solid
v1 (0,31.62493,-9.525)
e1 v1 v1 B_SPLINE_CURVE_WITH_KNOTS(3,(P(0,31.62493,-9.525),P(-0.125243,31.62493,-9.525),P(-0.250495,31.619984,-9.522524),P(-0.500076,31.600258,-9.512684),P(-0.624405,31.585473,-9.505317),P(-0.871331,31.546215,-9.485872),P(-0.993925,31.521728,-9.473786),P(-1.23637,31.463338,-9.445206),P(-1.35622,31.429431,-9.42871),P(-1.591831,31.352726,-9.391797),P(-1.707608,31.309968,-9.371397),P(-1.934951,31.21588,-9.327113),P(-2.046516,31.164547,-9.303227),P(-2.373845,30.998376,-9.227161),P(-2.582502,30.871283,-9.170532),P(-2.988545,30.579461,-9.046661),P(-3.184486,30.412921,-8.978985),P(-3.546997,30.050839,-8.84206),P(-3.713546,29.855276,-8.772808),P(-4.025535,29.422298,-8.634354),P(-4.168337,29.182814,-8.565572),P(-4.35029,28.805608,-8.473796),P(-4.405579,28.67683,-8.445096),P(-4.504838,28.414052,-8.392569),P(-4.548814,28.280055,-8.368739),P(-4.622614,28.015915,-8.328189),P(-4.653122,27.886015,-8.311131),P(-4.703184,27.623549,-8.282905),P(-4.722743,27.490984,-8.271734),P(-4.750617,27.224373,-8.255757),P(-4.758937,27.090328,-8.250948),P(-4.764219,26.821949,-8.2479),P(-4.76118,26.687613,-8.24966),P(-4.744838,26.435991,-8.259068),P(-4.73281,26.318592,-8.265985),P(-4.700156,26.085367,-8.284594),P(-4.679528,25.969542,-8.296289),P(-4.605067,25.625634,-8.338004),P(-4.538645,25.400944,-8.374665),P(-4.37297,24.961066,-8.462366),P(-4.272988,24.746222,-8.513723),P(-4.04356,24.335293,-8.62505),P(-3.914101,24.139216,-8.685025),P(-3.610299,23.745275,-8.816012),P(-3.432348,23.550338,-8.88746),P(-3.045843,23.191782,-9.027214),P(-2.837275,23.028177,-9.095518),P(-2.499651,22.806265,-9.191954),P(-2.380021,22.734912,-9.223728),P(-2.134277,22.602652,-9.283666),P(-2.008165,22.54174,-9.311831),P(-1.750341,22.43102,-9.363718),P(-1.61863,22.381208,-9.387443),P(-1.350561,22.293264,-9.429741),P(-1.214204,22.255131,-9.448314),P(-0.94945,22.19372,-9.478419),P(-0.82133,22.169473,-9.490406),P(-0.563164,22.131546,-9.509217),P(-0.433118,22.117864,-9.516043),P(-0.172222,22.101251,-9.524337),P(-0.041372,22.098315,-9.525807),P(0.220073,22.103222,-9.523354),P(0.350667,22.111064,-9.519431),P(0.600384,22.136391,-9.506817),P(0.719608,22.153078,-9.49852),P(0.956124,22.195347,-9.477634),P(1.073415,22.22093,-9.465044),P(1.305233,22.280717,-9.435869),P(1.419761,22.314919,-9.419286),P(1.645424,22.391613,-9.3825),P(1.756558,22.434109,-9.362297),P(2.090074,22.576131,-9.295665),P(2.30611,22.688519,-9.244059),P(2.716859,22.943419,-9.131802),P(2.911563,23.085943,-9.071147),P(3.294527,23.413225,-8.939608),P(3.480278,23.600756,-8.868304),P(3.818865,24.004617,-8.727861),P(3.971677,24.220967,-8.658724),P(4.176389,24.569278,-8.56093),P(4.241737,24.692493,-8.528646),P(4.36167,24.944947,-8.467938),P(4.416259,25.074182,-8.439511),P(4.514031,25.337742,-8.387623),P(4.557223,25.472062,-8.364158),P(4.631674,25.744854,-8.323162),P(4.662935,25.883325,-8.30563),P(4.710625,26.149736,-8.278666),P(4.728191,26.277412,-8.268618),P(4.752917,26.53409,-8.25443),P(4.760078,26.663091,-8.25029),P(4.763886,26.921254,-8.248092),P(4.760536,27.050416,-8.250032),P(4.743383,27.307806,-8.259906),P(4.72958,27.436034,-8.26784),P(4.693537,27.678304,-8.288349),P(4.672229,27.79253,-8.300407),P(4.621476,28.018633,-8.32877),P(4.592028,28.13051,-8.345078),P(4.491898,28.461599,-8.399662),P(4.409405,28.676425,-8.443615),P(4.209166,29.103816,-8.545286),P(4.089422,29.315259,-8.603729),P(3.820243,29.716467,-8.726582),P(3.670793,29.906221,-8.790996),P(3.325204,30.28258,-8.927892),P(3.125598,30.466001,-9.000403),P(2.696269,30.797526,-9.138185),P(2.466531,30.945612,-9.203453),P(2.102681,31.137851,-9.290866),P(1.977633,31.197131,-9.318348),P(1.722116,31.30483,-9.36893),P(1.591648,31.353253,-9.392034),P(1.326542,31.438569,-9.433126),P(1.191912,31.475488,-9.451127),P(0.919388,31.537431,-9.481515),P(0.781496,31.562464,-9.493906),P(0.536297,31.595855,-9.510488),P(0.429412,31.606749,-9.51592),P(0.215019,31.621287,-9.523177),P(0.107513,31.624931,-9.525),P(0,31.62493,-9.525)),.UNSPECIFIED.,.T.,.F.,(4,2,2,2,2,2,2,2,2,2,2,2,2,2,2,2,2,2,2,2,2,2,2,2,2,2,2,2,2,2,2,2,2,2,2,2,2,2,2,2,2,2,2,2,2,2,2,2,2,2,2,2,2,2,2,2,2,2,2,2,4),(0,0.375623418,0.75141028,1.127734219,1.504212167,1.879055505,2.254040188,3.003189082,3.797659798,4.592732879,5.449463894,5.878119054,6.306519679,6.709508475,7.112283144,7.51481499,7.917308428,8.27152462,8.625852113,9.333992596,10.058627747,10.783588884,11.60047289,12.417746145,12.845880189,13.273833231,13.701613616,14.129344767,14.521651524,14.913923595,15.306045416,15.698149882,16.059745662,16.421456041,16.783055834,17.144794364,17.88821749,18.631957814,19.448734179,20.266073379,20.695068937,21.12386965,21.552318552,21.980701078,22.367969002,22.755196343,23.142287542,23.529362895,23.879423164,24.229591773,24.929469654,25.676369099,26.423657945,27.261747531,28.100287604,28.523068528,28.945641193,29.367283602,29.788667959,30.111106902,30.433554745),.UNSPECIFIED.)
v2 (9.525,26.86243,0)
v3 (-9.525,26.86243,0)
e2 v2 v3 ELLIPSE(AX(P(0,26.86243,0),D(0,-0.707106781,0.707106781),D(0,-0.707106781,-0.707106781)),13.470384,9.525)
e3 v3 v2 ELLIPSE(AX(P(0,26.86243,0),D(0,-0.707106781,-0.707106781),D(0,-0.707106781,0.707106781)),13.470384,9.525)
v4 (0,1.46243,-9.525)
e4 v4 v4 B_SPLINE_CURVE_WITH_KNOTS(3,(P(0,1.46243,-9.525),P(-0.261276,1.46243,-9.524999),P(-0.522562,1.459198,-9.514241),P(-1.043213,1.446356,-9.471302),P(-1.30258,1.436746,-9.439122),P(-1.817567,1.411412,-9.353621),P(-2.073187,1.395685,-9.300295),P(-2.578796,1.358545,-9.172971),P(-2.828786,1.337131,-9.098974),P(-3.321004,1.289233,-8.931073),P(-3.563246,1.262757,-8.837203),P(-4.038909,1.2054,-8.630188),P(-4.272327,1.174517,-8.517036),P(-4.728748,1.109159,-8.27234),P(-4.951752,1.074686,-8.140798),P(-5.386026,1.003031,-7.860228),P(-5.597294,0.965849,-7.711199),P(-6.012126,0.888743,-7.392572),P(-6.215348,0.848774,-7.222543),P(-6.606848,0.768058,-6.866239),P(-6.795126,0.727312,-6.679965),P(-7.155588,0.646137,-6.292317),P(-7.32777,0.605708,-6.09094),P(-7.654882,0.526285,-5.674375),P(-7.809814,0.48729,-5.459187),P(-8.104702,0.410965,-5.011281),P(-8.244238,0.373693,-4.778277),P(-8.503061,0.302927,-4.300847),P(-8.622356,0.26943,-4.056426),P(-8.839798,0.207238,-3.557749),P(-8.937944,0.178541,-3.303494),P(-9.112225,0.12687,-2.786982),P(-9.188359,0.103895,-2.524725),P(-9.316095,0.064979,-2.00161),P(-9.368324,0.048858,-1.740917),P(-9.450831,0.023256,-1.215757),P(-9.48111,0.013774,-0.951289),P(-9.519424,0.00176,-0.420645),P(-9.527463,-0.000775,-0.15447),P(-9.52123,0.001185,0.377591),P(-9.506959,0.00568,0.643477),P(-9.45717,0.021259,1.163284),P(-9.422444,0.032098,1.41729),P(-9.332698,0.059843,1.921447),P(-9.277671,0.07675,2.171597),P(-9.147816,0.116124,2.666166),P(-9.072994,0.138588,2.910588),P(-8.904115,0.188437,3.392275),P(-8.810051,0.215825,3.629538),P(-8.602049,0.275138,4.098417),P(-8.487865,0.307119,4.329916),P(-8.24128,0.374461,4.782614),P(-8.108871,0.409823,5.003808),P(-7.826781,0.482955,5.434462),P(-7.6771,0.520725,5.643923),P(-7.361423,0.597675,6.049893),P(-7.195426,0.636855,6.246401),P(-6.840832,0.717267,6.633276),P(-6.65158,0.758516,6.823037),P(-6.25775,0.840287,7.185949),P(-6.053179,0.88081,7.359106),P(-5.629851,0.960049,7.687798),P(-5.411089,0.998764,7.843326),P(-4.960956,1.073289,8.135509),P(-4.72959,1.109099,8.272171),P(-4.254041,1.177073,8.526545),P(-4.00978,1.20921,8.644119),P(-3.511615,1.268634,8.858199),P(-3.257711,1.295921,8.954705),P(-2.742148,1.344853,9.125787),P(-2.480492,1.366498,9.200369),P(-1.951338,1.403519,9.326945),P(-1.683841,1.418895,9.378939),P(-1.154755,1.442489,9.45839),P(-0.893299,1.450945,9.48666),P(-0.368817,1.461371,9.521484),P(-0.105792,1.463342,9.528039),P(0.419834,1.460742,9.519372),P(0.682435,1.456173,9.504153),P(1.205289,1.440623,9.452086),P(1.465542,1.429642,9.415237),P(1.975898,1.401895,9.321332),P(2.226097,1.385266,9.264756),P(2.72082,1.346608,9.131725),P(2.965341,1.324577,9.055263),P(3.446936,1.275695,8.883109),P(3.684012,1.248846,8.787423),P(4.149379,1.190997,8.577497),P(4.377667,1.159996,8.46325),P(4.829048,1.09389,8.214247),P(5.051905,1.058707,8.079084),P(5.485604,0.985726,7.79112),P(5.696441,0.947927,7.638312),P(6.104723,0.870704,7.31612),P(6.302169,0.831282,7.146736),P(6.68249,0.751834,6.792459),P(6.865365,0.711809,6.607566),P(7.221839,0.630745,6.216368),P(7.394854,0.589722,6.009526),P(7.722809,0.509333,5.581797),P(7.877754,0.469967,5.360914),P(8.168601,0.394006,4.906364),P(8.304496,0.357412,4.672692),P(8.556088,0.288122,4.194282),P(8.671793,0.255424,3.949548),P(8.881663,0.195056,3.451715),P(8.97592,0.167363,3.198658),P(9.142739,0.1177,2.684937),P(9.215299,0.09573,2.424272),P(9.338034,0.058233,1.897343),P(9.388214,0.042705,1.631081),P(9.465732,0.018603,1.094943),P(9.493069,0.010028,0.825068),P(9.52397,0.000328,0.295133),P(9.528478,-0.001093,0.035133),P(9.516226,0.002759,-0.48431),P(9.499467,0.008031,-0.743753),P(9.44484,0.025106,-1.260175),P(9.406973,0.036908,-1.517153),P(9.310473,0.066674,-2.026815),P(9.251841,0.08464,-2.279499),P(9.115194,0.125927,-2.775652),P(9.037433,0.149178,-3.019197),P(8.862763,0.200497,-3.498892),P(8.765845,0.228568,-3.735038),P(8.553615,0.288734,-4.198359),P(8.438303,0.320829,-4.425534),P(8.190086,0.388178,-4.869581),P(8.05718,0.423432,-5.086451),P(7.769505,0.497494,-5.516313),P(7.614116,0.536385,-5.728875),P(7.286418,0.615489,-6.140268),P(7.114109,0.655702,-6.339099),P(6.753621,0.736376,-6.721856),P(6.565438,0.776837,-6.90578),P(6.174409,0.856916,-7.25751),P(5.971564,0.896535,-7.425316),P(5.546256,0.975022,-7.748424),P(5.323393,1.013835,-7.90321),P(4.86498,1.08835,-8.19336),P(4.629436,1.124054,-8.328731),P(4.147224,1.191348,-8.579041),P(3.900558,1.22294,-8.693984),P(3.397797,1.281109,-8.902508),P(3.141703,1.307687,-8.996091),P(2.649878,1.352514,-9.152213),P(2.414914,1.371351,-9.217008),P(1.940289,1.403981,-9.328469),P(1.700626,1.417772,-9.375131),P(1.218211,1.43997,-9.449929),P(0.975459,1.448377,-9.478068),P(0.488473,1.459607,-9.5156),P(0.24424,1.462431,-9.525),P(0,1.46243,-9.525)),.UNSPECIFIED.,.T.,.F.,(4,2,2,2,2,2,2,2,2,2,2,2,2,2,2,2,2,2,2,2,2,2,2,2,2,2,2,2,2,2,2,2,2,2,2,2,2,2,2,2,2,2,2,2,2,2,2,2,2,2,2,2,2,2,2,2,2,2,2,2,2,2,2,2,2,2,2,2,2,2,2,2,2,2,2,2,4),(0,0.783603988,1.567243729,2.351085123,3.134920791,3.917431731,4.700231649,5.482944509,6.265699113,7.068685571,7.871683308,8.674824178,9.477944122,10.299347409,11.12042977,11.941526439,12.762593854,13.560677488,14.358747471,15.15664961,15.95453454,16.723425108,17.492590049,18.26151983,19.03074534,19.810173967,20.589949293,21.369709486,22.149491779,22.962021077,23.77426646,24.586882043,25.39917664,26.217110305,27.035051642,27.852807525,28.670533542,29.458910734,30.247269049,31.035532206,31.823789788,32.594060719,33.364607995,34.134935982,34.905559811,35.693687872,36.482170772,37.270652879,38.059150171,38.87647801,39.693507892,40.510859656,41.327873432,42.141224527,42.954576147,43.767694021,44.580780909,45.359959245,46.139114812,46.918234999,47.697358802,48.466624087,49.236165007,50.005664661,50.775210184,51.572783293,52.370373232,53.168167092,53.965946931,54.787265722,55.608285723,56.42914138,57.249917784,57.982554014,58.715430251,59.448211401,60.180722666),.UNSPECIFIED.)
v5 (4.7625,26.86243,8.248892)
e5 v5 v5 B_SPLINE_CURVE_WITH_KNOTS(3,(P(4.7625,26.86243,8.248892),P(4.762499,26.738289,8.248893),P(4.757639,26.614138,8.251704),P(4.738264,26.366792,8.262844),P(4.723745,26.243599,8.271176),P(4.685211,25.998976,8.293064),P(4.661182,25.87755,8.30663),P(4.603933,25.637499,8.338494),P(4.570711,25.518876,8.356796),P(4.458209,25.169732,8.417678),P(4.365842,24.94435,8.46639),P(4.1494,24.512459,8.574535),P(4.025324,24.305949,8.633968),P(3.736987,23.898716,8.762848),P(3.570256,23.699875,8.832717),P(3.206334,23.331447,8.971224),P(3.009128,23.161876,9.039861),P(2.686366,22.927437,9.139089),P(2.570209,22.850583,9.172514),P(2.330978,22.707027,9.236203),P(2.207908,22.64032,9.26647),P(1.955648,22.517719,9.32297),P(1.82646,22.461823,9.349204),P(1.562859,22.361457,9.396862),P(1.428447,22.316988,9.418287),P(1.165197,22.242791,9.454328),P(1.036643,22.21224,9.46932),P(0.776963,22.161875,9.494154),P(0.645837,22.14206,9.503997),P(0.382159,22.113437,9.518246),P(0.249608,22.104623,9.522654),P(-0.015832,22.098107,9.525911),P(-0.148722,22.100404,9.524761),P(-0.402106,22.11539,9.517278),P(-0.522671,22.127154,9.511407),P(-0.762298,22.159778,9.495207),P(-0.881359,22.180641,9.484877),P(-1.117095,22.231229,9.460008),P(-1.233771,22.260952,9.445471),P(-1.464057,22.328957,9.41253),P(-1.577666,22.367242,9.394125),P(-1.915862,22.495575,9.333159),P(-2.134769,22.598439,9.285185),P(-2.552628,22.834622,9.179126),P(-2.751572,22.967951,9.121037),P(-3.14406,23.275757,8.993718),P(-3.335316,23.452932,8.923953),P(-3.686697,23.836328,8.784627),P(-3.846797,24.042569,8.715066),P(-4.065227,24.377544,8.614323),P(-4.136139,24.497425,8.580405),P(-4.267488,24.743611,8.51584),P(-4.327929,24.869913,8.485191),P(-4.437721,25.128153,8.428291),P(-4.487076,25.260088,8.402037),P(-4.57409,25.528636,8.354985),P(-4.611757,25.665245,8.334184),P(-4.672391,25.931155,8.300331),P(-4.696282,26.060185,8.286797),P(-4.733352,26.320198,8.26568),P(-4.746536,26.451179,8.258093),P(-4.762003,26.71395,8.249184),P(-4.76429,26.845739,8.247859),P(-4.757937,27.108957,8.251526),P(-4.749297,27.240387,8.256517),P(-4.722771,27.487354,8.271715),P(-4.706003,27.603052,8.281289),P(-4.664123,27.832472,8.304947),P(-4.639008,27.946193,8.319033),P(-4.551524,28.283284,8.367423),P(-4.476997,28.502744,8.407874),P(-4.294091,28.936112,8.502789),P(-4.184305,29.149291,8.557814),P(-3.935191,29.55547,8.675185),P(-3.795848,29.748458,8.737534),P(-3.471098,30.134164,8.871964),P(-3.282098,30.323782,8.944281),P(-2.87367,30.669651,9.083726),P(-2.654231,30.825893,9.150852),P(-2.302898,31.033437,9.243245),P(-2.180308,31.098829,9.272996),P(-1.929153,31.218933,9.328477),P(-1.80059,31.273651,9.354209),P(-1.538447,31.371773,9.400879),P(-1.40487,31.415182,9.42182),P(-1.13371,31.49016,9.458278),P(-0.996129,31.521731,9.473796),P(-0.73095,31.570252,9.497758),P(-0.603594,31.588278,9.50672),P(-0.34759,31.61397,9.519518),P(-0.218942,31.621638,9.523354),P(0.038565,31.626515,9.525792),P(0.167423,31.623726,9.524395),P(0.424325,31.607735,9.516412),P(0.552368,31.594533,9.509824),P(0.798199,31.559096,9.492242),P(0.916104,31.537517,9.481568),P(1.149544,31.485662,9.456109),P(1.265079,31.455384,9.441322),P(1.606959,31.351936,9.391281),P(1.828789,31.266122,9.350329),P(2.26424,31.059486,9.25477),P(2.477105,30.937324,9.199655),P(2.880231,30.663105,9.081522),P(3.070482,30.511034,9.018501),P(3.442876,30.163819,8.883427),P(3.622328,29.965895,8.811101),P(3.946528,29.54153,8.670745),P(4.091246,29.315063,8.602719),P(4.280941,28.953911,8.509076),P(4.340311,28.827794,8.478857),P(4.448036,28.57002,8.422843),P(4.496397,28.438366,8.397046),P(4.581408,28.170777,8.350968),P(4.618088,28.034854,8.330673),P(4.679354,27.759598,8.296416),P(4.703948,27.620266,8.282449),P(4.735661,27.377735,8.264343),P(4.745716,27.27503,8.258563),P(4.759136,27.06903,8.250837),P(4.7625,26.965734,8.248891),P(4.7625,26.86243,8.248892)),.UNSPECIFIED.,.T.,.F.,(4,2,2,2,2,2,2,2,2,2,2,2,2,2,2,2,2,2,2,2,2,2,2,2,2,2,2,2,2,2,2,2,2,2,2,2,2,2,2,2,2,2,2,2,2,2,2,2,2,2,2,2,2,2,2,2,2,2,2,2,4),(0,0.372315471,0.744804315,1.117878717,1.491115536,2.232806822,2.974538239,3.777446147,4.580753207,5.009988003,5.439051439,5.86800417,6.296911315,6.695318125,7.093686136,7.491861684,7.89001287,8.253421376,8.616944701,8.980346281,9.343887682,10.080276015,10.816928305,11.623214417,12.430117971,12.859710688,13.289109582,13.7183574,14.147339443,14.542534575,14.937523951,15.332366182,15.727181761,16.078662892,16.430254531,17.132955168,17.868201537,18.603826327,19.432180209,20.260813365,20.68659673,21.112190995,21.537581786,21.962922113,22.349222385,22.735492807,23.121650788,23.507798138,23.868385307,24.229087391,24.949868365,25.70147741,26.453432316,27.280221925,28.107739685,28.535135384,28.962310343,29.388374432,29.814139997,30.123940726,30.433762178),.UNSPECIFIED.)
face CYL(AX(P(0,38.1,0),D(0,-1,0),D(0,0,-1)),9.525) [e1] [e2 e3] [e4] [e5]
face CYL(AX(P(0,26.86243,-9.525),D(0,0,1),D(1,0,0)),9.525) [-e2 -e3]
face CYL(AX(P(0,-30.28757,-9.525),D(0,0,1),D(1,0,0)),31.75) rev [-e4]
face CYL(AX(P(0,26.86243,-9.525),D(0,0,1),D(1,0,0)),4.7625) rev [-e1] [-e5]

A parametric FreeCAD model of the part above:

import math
import FreeCAD as App
import Part
import Sketcher

V = App.Vector
Q = App.Units.Quantity

doc = App.newDocument("Part")
body = doc.addObject("PartDesign::Body", "Body")

# Sketch on XZ plane
sketch1 = body.newObject("Sketcher::SketchObject", "Sketch")
sketch1.AttachmentSupport = (doc.getObject("XZ_Plane"), [""])
sketch1.MapMode = "FlatFace"
sketch1.addGeometry(Part.Circle(V(0, 0, 0), V(0, 0, 1), 10), False)
sketch1.addConstraint([
    Sketcher.Constraint("Coincident", 0, 3, -1, 1),
    Sketcher.Constraint("Diameter", 0, Q("0.75 in")),
])
pad1 = body.newObject("PartDesign::Pad", "Pad")
pad1.Profile = sketch1
pad1.Length = Q("1.5 in")
pad1.Reversed = True

# Sketch on XY plane
sketch2 = body.newObject("Sketcher::SketchObject", "Sketch001")
sketch2.AttachmentSupport = (doc.getObject("XY_Plane"), [""])
sketch2.MapMode = "FlatFace"
sketch2.addGeometry([
    Part.Circle(V(0, -30.3, 0), V(0, 0, 1), 31.8),  # 0
    Part.Circle(V(0, 26.9, 0), V(0, 0, 1), 4.8),  # 1
    Part.LineSegment(V(-9.5, 38.1, 0), V(-9.5, 26.9, 0)),  # 2
    Part.ArcOfCircle(Part.Circle(V(0, 26.9, 0), V(0, 0, 1), 9.5), math.radians(0), math.radians(180)),  # 3
    Part.LineSegment(V(9.5, 26.9, 0), V(9.5, 38.1, 0)),  # 4
    Part.LineSegment(V(9.5, 38.1, 0), V(-9.5, 38.1, 0)),  # 5
], False)
sketch2.addConstraint([
    Sketcher.Constraint("Tangent", 2, 2, 3, 2),
    Sketcher.Constraint("Tangent", 3, 1, 4, 1),
    Sketcher.Constraint("Coincident", 4, 2, 5, 1),
    Sketcher.Constraint("Coincident", 5, 2, 2, 1),
    Sketcher.Constraint("Vertical", 2),
    Sketcher.Constraint("Vertical", 4),
    Sketcher.Constraint("Horizontal", 5),
    Sketcher.Constraint("Coincident", 3, 3, 1, 3),
    Sketcher.Constraint("PointOnObject", 0, 3, -2),
    Sketcher.Constraint("PointOnObject", 1, 3, -2),
    Sketcher.Constraint("Diameter", 0, Q("2.5 in")),
    Sketcher.Constraint("Diameter", 1, Q("0.375 in")),
    Sketcher.Constraint("Radius", 3, Q("0.375 in")),
    Sketcher.Constraint("DistanceY", -1, 1, 4, 2, Q("1.5 in")),
    Sketcher.Constraint("DistanceY", 0, 3, 1, 3, Q("2.25 in")),
    Sketcher.Constraint("DistanceY", 2, 2, 2, 1, Q("11.23757 mm")),
])
pocket1 = body.newObject("PartDesign::Pocket", "Pocket")
pocket1.Profile = sketch2
pocket1.Type = "ThroughAll"
pocket1.Midplane = True

doc.recompute()
